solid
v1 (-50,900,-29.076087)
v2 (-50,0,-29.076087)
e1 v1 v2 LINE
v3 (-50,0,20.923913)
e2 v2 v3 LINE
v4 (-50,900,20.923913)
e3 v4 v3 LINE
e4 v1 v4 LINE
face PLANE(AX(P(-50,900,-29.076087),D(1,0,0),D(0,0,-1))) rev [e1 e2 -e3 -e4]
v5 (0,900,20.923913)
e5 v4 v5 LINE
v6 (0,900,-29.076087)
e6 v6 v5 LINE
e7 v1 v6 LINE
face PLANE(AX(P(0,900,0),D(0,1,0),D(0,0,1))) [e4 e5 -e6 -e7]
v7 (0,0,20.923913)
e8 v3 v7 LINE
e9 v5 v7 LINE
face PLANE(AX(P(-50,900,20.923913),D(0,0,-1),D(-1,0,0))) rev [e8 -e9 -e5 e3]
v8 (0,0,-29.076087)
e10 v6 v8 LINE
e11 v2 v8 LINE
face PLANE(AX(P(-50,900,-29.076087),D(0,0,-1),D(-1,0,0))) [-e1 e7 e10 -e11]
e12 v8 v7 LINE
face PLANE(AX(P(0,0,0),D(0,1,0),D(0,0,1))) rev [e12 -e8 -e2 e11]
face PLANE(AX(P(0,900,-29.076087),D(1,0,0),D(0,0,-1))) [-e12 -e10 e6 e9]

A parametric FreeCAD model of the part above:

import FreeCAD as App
import Part
import Sketcher
from FreeCAD import Vector


def add_polygon(sketch, points):
    """Adds a closed chain of lines whose ends are joined by coincident constraints."""
    first, n = sketch.GeometryCount, len(points)
    for a, b in zip(points, points[1:] + points[:1]):
        sketch.addGeometry(Part.LineSegment(App.Vector(*a, 0), App.Vector(*b, 0)), False)
    for i in range(n):
        sketch.addConstraint(Sketcher.Constraint("Coincident", first + i, 2, first + (i + 1) % n, 1))

doc = App.newDocument("Part")
body = doc.addObject("PartDesign::Body", "Body")

# Sketch on XZ plane
sketch1 = body.newObject("Sketcher::SketchObject", "Sketch")
sketch1.AttachmentSupport = (doc.getObject("XZ_Plane"), [""])
sketch1.MapMode = "FlatFace"
add_polygon(sketch1, [(-50, -29), (-50, 21), (0, 21), (0, -29)])  # lines 0-3
sketch1.addConstraint(Sketcher.Constraint("Vertical", 0))
sketch1.addConstraint(Sketcher.Constraint("Horizontal", 1))
sketch1.addConstraint(Sketcher.Constraint("Vertical", 2))
sketch1.addConstraint(Sketcher.Constraint("Horizontal", 3))
sketch1.addConstraint(Sketcher.Constraint("PointOnObject", 1, 2, -2))
sketch1.addConstraint(Sketcher.Constraint("Equal", 3, 0))
sketch1.addConstraint(Sketcher.Constraint("DistanceX", 1, 1, 1, 2, 50.0))
sketch1.addConstraint(Sketcher.Constraint("DistanceY", -1, 1, 0, 2, 20.923913))
pad1 = body.newObject("PartDesign::Pad", "Pad")
pad1.Profile = sketch1
pad1.Length = 900
pad1.Reversed = True

doc.recompute()
